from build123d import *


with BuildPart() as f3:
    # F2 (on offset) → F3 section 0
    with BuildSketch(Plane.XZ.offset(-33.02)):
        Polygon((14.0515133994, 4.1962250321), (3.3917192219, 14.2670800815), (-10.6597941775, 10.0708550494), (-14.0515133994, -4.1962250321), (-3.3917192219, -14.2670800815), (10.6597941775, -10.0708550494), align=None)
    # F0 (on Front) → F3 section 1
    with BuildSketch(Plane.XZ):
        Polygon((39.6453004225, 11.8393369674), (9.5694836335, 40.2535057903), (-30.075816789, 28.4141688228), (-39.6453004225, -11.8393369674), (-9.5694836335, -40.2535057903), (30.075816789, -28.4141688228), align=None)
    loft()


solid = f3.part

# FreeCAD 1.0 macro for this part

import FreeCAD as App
import Part
import Sketcher
from FreeCAD import Vector
Q = App.Units.Quantity

doc = App.newDocument("Part")
body = doc.addObject("PartDesign::Body", "Body")

# Sketch on XZ plane
sketch1 = doc.addObject("Sketcher::SketchObject", "Sketch")
body.addObject(sketch1)
sketch1.AttachmentSupport = (doc.XZ_Plane, [""])
sketch1.MapMode = "FlatFace"
sketch1.AttachmentOffset = App.Placement(Vector(0, 0, -33.02), App.Rotation())
sketch1.addGeometry(Part.LineSegment(Vector(14.051513, 4.196225, 0), Vector(3.391719, 14.26708, 0)), False)
sketch1.addGeometry(Part.LineSegment(Vector(3.391719, 14.26708, 0), Vector(-10.659794, 10.070855, 0)), False)
sketch1.addGeometry(Part.LineSegment(Vector(-10.659794, 10.070855, 0), Vector(-14.051513, -4.196225, 0)), False)
sketch1.addGeometry(Part.LineSegment(Vector(-14.051513, -4.196225, 0), Vector(-3.391719, -14.26708, 0)), False)
sketch1.addGeometry(Part.LineSegment(Vector(-3.391719, -14.26708, 0), Vector(10.659794, -10.070855, 0)), False)
sketch1.addGeometry(Part.LineSegment(Vector(10.659794, -10.070855, 0), Vector(14.051513, 4.196225, 0)), False)
sketch1.addConstraint(Sketcher.Constraint("Coincident", 0, 2, 1, 1))
sketch1.addConstraint(Sketcher.Constraint("Coincident", 1, 2, 2, 1))
sketch1.addConstraint(Sketcher.Constraint("Coincident", 2, 2, 3, 1))
sketch1.addConstraint(Sketcher.Constraint("Coincident", 3, 2, 4, 1))
sketch1.addConstraint(Sketcher.Constraint("Coincident", 4, 2, 5, 1))
sketch1.addConstraint(Sketcher.Constraint("Coincident", 5, 2, 0, 1))
sketch1.addConstraint(Sketcher.Constraint("Symmetric", 0, 2, 3, 2, -1, 1))
sketch1.addConstraint(Sketcher.Constraint("Symmetric", 1, 2, 4, 2, -1, 1))
sketch1.addConstraint(Sketcher.Constraint("Symmetric", 2, 2, 5, 2, -1, 1))
sketch1.addConstraint(Sketcher.Constraint("Equal", 0, 1))
sketch1.addConstraint(Sketcher.Constraint("Equal", 1, 2))
sketch1.addConstraint(Sketcher.Constraint("DistanceX", -1, 1, 0, 2, Q("3.391719 mm")))
sketch1.addConstraint(Sketcher.Constraint("DistanceY", -1, 1, 0, 2, Q("14.26708 mm")))
sketch1.addConstraint(Sketcher.Constraint("DistanceX", 2, 2, 1, 2, Q("3.391719 mm")))
sketch1.addConstraint(Sketcher.Constraint("DistanceY", 2, 2, 1, 2, Q("14.26708 mm")))

# Sketch on XZ plane
sketch2 = doc.addObject("Sketcher::SketchObject", "Sketch001")
body.addObject(sketch2)
sketch2.AttachmentSupport = (doc.XZ_Plane, [""])
sketch2.MapMode = "FlatFace"
sketch2.addGeometry(Part.LineSegment(Vector(39.6453, 11.839337, 0), Vector(9.569484, 40.253506, 0)), False)
sketch2.addGeometry(Part.LineSegment(Vector(9.569484, 40.253506, 0), Vector(-30.075817, 28.414169, 0)), False)
sketch2.addGeometry(Part.LineSegment(Vector(-30.075817, 28.414169, 0), Vector(-39.6453, -11.839337, 0)), False)
sketch2.addGeometry(Part.LineSegment(Vector(-39.6453, -11.839337, 0), Vector(-9.569484, -40.253506, 0)), False)
sketch2.addGeometry(Part.LineSegment(Vector(-9.569484, -40.253506, 0), Vector(30.075817, -28.414169, 0)), False)
sketch2.addGeometry(Part.LineSegment(Vector(30.075817, -28.414169, 0), Vector(39.6453, 11.839337, 0)), False)
sketch2.addConstraint(Sketcher.Constraint("Coincident", 0, 2, 1, 1))
sketch2.addConstraint(Sketcher.Constraint("Coincident", 1, 2, 2, 1))
sketch2.addConstraint(Sketcher.Constraint("Coincident", 2, 2, 3, 1))
sketch2.addConstraint(Sketcher.Constraint("Coincident", 3, 2, 4, 1))
sketch2.addConstraint(Sketcher.Constraint("Coincident", 4, 2, 5, 1))
sketch2.addConstraint(Sketcher.Constraint("Coincident", 5, 2, 0, 1))
sketch2.addConstraint(Sketcher.Constraint("Symmetric", 0, 2, 3, 2, -1, 1))
sketch2.addConstraint(Sketcher.Constraint("Symmetric", 1, 2, 4, 2, -1, 1))
sketch2.addConstraint(Sketcher.Constraint("Symmetric", 2, 2, 5, 2, -1, 1))
sketch2.addConstraint(Sketcher.Constraint("Equal", 0, 1))
sketch2.addConstraint(Sketcher.Constraint("Equal", 1, 2))
sketch2.addConstraint(Sketcher.Constraint("DistanceX", 2, 2, -1, 1, Q("39.6453 mm")))
sketch2.addConstraint(Sketcher.Constraint("DistanceX", 1, 2, 0, 2, Q("39.6453 mm")))
sketch2.addConstraint(Sketcher.Constraint("Distance", 0, Q("41.375352 mm")))
sketch2.addConstraint(Sketcher.Constraint("DistanceY", -1, 1, 1, 2, Q("28.414169 mm")))

additiveloft = doc.addObject("PartDesign::AdditiveLoft", "AdditiveLoft")
body.addObject(additiveloft)
additiveloft.Profile = sketch1
additiveloft.Sections = [sketch2]

doc.recompute()
